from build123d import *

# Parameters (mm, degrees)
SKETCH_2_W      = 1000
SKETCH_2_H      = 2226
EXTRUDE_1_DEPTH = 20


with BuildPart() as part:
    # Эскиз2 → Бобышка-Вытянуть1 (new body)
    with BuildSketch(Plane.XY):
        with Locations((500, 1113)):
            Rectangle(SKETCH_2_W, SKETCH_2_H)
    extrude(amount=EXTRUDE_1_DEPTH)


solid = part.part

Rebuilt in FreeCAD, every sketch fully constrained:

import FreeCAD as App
import Part
import Sketcher


def add_polygon(sketch, points):
    """Adds a closed chain of lines whose ends are joined by coincident constraints."""
    first, n = sketch.GeometryCount, len(points)
    for a, b in zip(points, points[1:] + points[:1]):
        sketch.addGeometry(Part.LineSegment(App.Vector(*a, 0), App.Vector(*b, 0)), False)
    for i in range(n):
        sketch.addConstraint(Sketcher.Constraint("Coincident", first + i, 2, first + (i + 1) % n, 1))

doc = App.newDocument("Part")
body = doc.addObject("PartDesign::Body", "Body")

# Sketch on XY plane
sketch1 = doc.addObject("Sketcher::SketchObject", "Sketch")
body.addObject(sketch1)
sketch1.AttachmentSupport = (doc.XY_Plane, [""])
sketch1.MapMode = "FlatFace"
add_polygon(sketch1, [(0, 2226), (0, 0), (1000, 0), (1000, 2226)])  # lines 0-3
sketch1.addConstraint(Sketcher.Constraint("Vertical", 0))
sketch1.addConstraint(Sketcher.Constraint("Horizontal", 1))
sketch1.addConstraint(Sketcher.Constraint("Vertical", 2))
sketch1.addConstraint(Sketcher.Constraint("Horizontal", 3))
sketch1.addConstraint(Sketcher.Constraint("Coincident", 0, 2, -1, 1))
sketch1.addConstraint(Sketcher.Constraint("DistanceX", 1, 1, 1, 2, 1000.0))
sketch1.addConstraint(Sketcher.Constraint("DistanceY", 0, 2, 0, 1, 2226.0))
pad1 = doc.addObject("PartDesign::Pad", "Pad")
body.addObject(pad1)
pad1.Profile = sketch1
pad1.Length = 20

doc.recompute()
